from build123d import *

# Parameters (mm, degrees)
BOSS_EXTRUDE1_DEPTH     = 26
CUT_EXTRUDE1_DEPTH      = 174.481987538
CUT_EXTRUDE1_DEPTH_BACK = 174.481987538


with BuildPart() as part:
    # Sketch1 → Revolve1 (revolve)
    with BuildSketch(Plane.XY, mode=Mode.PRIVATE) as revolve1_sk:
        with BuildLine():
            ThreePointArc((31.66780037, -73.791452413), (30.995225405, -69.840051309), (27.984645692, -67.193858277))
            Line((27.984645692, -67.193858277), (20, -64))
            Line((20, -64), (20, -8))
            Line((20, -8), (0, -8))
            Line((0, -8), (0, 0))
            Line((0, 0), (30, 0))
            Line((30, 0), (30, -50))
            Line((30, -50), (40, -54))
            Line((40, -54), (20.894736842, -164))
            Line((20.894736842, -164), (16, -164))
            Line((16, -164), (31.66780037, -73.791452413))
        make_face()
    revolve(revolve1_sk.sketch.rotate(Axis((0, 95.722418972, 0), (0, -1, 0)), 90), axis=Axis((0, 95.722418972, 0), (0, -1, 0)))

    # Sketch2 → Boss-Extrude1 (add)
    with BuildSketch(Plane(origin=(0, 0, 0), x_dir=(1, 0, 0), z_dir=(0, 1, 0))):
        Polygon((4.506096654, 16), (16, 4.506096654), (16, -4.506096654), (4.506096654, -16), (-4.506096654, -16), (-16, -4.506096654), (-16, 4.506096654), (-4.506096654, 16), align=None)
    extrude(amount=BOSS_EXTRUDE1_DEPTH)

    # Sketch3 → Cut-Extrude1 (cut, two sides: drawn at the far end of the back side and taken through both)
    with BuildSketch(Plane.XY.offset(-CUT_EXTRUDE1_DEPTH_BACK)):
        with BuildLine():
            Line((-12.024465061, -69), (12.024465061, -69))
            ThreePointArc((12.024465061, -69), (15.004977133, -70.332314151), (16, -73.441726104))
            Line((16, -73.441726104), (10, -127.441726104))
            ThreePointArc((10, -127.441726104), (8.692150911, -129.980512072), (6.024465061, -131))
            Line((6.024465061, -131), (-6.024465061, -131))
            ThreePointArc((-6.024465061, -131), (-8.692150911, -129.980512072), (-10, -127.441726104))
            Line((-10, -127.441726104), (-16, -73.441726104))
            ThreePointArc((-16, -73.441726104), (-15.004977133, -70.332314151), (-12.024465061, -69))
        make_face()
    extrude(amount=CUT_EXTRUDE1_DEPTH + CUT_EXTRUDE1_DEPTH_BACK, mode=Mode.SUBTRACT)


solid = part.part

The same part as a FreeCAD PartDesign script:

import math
import FreeCAD as App
import Part
import Sketcher

doc = App.newDocument("Part")
params = doc.addObject("Spreadsheet::Sheet", "Params")
for row, (alias, value) in enumerate([
    ("sketch1_radius", "6 mm"),
    ("sketch1_width", "30 mm"),
    ("sketch1_width2", "20 mm"),
    ("sketch1_height", "50 mm"),
    ("sketch1_height2", "8 mm"),
    ("revolution_angle", "360 deg"),
    ("pad1_length", "26 mm"),
    ("sketch3_radius", "4 mm"),
], start=1):
    params.set(f"A{row}", alias)
    params.set(f"B{row}", "=" + value)
    params.setAlias(f"B{row}", alias)

body = doc.addObject("PartDesign::Body", "Body")

sketch1 = body.newObject("Sketcher::SketchObject", "Sketch")
sketch1.AttachmentSupport = (doc.getObject("XY_Plane"), [""])
sketch1.MapMode = "FlatFace"
sketch1.addGeometry([
    Part.ArcOfCircle(Part.Circle(App.Vector(25.756302, -72.764718, 0), App.Vector(0, 0, 1), 6), math.radians(-9.85308), math.radians(68.198591)),
    Part.LineSegment(App.Vector(31.6678, -73.791452, 0), App.Vector(16, -164, 0)),
    Part.LineSegment(App.Vector(16, -164, 0), App.Vector(20.894737, -164, 0)),
    Part.LineSegment(App.Vector(20.894737, -164, 0), App.Vector(40, -54, 0)),
    Part.LineSegment(App.Vector(40, -54, 0), App.Vector(30, -50, 0)),
    Part.LineSegment(App.Vector(30, -50, 0), App.Vector(30, 0, 0)),
    Part.LineSegment(App.Vector(30, 0, 0), App.Vector(0, 0, 0)),
    Part.LineSegment(App.Vector(0, 0, 0), App.Vector(0, -8, 0)),
    Part.LineSegment(App.Vector(0, -8, 0), App.Vector(20, -8, 0)),
    Part.LineSegment(App.Vector(20, -8, 0), App.Vector(20, -64, 0)),
    Part.LineSegment(App.Vector(20, -64, 0), App.Vector(27.984646, -67.193858, 0)),
], False)
sketch1.addConstraint([
    Sketcher.Constraint("Tangent", 0, 1, 1, 1),
    Sketcher.Constraint("Coincident", 1, 2, 2, 1),
    Sketcher.Constraint("Coincident", 2, 2, 3, 1),
    Sketcher.Constraint("Coincident", 3, 2, 4, 1),
    Sketcher.Constraint("Coincident", 4, 2, 5, 1),
    Sketcher.Constraint("Coincident", 5, 2, 6, 1),
    Sketcher.Constraint("Coincident", 6, 2, 7, 1),
    Sketcher.Constraint("Coincident", 7, 2, 8, 1),
    Sketcher.Constraint("Coincident", 8, 2, 9, 1),
    Sketcher.Constraint("Coincident", 9, 2, 10, 1),
    Sketcher.Constraint("Tangent", 10, 2, 0, 2),
    Sketcher.Constraint("Horizontal", 2),
    Sketcher.Constraint("Vertical", 5),
    Sketcher.Constraint("Horizontal", 6),
    Sketcher.Constraint("Vertical", 7),
    Sketcher.Constraint("Horizontal", 8),
    Sketcher.Constraint("Vertical", 9),
    Sketcher.Constraint("Coincident", 6, 2, -1, 1),
    Sketcher.Constraint("Parallel", 1, 3),
    Sketcher.Constraint("Parallel", 4, 10),
    Sketcher.Constraint("Radius", 0, 6.0),
    Sketcher.Constraint("DistanceX", 6, 2, 6, 1, 30.0),
    Sketcher.Constraint("DistanceX", 8, 1, 8, 2, 20.0),
    Sketcher.Constraint("DistanceY", 5, 1, 5, 2, 50.0),
    Sketcher.Constraint("DistanceY", 7, 2, 7, 1, 8.0),
    Sketcher.Constraint("DistanceY", 9, 2, 9, 1, 56.0),
    Sketcher.Constraint("DistanceX", -1, 1, 1, 2, 16.0),
    Sketcher.Constraint("DistanceY", 1, 2, -1, 1, 164.0),
    Sketcher.Constraint("DistanceX", -1, 1, 3, 2, 40.0),
    Sketcher.Constraint("DistanceY", 3, 2, -1, 1, 54.0),
    Sketcher.Constraint("DistanceX", -1, 1, 0, 3, 25.756302),
])
sketch1.setExpression("Constraints[20]", "Params.sketch1_radius")
sketch1.setExpression("Constraints[21]", "Params.sketch1_width")
sketch1.setExpression("Constraints[22]", "Params.sketch1_width2")
sketch1.setExpression("Constraints[23]", "Params.sketch1_height")
sketch1.setExpression("Constraints[24]", "Params.sketch1_height2")
revolution = body.newObject("PartDesign::Revolution", "Revolution")
revolution.Profile = sketch1
revolution.ReferenceAxis = (sketch1, ["V_Axis"])
revolution.setExpression("Angle", "Params.revolution_angle")

sketch2 = body.newObject("Sketcher::SketchObject", "Sketch001")
sketch2.AttachmentSupport = (doc.getObject("XZ_Plane"), [""])
sketch2.MapMode = "FlatFace"
sketch2.addGeometry([
    Part.LineSegment(App.Vector(16, -4.506097, 0), App.Vector(4.506097, -16, 0)),
    Part.LineSegment(App.Vector(4.506097, -16, 0), App.Vector(-4.506097, -16, 0)),
    Part.LineSegment(App.Vector(-4.506097, -16, 0), App.Vector(-16, -4.506097, 0)),
    Part.LineSegment(App.Vector(-16, -4.506097, 0), App.Vector(-16, 4.506097, 0)),
    Part.LineSegment(App.Vector(-16, 4.506097, 0), App.Vector(-4.506097, 16, 0)),
    Part.LineSegment(App.Vector(-4.506097, 16, 0), App.Vector(4.506097, 16, 0)),
    Part.LineSegment(App.Vector(4.506097, 16, 0), App.Vector(16, 4.506097, 0)),
    Part.LineSegment(App.Vector(16, 4.506097, 0), App.Vector(16, -4.506097, 0)),
], False)
sketch2.addConstraint([
    Sketcher.Constraint("Coincident", 0, 2, 1, 1),
    Sketcher.Constraint("Coincident", 1, 2, 2, 1),
    Sketcher.Constraint("Coincident", 2, 2, 3, 1),
    Sketcher.Constraint("Coincident", 3, 2, 4, 1),
    Sketcher.Constraint("Coincident", 4, 2, 5, 1),
    Sketcher.Constraint("Coincident", 5, 2, 6, 1),
    Sketcher.Constraint("Coincident", 6, 2, 7, 1),
    Sketcher.Constraint("Coincident", 7, 2, 0, 1),
    Sketcher.Constraint("Horizontal", 1),
    Sketcher.Constraint("Vertical", 3),
    Sketcher.Constraint("Horizontal", 5),
    Sketcher.Constraint("Vertical", 7),
    Sketcher.Constraint("Symmetric", 0, 2, 4, 2, -1, 1),
    Sketcher.Constraint("Symmetric", 2, 2, 6, 2, -1, 1),
    Sketcher.Constraint("Perpendicular", 0, 2),
    Sketcher.Constraint("Perpendicular", 2, 4),
    Sketcher.Constraint("Perpendicular", 4, 6),
    Sketcher.Constraint("Horizontal", 3, 2, 6, 2),
    Sketcher.Constraint("Vertical", 1, 2, 4, 2),
    Sketcher.Constraint("Equal", 5, 3),
    Sketcher.Constraint("DistanceY", 0, 2, -1, 1, 16.0),
    Sketcher.Constraint("DistanceX", 1, 2, 1, 1, 9.012193),
])
pad1 = body.newObject("PartDesign::Pad", "Pad")
pad1.Profile = sketch2
pad1.setExpression("Length", "Params.pad1_length")
pad1.Reversed = True

sketch3 = body.newObject("Sketcher::SketchObject", "Sketch002")
sketch3.AttachmentSupport = (doc.getObject("XY_Plane"), [""])
sketch3.MapMode = "FlatFace"
sketch3.addGeometry([
    Part.LineSegment(App.Vector(12.024465, -69, 0), App.Vector(-12.024465, -69, 0)),
    Part.ArcOfCircle(Part.Circle(App.Vector(-12.024465, -73, 0), App.Vector(0, 0, 1), 4), math.radians(90), math.radians(186.340192)),
    Part.LineSegment(App.Vector(-16, -73.441726, 0), App.Vector(-10, -127.441726, 0)),
    Part.ArcOfCircle(Part.Circle(App.Vector(-6.024465, -127, 0), App.Vector(0, 0, 1), 4), math.radians(-173.659808), math.radians(-90)),
    Part.LineSegment(App.Vector(-6.024465, -131, 0), App.Vector(6.024465, -131, 0)),
    Part.ArcOfCircle(Part.Circle(App.Vector(6.024465, -127, 0), App.Vector(0, 0, 1), 4), math.radians(-90), math.radians(-6.340192)),
    Part.LineSegment(App.Vector(10, -127.441726, 0), App.Vector(16, -73.441726, 0)),
    Part.ArcOfCircle(Part.Circle(App.Vector(12.024465, -73, 0), App.Vector(0, 0, 1), 4), math.radians(-6.340192), math.radians(90)),
], False)
sketch3.addConstraint([
    Sketcher.Constraint("Tangent", 0, 2, 1, 1),
    Sketcher.Constraint("Tangent", 1, 2, 2, 1),
    Sketcher.Constraint("Tangent", 2, 2, 3, 1),
    Sketcher.Constraint("Tangent", 3, 2, 4, 1),
    Sketcher.Constraint("Tangent", 4, 2, 5, 1),
    Sketcher.Constraint("Tangent", 5, 2, 6, 1),
    Sketcher.Constraint("Tangent", 6, 2, 7, 1),
    Sketcher.Constraint("Tangent", 7, 2, 0, 1),
    Sketcher.Constraint("Horizontal", 0),
    Sketcher.Constraint("Horizontal", 4),
    Sketcher.Constraint("Equal", 1, 3),
    Sketcher.Constraint("Equal", 3, 5),
    Sketcher.Constraint("Equal", 5, 7),
    Sketcher.Constraint("Symmetric", 2, 2, 5, 2, -2),
    Sketcher.Constraint("Radius", 1, 4.0),
    Sketcher.Constraint("DistanceY", 1, 3, -1, 1, 73.0),
    Sketcher.Constraint("DistanceY", 3, 3, -1, 1, 127.0),
    Sketcher.Constraint("DistanceX", 1, 2, -1, 1, 16.0),
    Sketcher.Constraint("DistanceX", 2, 2, -1, 1, 10.0),
])
sketch3.setExpression("Constraints[14]", "Params.sketch3_radius")
pocket1 = body.newObject("PartDesign::Pocket", "Pocket")
pocket1.Profile = sketch3
pocket1.Type = "ThroughAll"
pocket1.Midplane = True

doc.recompute()
